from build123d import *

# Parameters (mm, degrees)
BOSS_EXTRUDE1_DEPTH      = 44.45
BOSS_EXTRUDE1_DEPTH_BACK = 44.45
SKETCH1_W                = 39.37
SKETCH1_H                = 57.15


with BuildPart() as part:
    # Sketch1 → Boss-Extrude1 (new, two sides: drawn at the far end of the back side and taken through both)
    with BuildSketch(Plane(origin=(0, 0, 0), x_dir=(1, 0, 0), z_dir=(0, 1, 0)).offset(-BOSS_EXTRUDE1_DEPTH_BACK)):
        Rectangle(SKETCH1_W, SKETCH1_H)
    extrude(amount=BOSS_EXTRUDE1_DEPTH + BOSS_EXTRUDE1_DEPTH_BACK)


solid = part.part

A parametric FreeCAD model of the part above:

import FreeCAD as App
import Part
import Sketcher
from FreeCAD import Vector
Q = App.Units.Quantity


def add_polygon(sketch, points):
    """Adds a closed chain of lines whose ends are joined by coincident constraints."""
    first, n = sketch.GeometryCount, len(points)
    for a, b in zip(points, points[1:] + points[:1]):
        sketch.addGeometry(Part.LineSegment(App.Vector(*a, 0), App.Vector(*b, 0)), False)
    for i in range(n):
        sketch.addConstraint(Sketcher.Constraint("Coincident", first + i, 2, first + (i + 1) % n, 1))

doc = App.newDocument("Part")
body = doc.addObject("PartDesign::Body", "Body")

sketch1 = body.newObject("Sketcher::SketchObject", "Sketch")
sketch1.AttachmentSupport = (doc.getObject("XZ_Plane"), [""])
sketch1.MapMode = "FlatFace"
add_polygon(sketch1, [(-19.685, -28.575), (-19.685, 28.575), (19.685, 28.575), (19.685, -28.575)])
sketch1.addConstraint([
    Sketcher.Constraint("Vertical", 0),
    Sketcher.Constraint("Horizontal", 1),
    Sketcher.Constraint("Vertical", 2),
    Sketcher.Constraint("Horizontal", 3),
    Sketcher.Constraint("Symmetric", 0, 2, 2, 2, -1, 1),
    Sketcher.Constraint("DistanceX", 1, 1, 1, 2, Q("1.55 in")),
    Sketcher.Constraint("DistanceY", 0, 1, 0, 2, Q("2.25 in")),
])
pad1 = body.newObject("PartDesign::Pad", "Pad")
pad1.Profile = sketch1
pad1.Type = "TwoLengths"
pad1.Length = Q("1.75 in")
pad1.Length2 = Q("1.75 in")
pad1.Reversed = True

doc.recompute()
